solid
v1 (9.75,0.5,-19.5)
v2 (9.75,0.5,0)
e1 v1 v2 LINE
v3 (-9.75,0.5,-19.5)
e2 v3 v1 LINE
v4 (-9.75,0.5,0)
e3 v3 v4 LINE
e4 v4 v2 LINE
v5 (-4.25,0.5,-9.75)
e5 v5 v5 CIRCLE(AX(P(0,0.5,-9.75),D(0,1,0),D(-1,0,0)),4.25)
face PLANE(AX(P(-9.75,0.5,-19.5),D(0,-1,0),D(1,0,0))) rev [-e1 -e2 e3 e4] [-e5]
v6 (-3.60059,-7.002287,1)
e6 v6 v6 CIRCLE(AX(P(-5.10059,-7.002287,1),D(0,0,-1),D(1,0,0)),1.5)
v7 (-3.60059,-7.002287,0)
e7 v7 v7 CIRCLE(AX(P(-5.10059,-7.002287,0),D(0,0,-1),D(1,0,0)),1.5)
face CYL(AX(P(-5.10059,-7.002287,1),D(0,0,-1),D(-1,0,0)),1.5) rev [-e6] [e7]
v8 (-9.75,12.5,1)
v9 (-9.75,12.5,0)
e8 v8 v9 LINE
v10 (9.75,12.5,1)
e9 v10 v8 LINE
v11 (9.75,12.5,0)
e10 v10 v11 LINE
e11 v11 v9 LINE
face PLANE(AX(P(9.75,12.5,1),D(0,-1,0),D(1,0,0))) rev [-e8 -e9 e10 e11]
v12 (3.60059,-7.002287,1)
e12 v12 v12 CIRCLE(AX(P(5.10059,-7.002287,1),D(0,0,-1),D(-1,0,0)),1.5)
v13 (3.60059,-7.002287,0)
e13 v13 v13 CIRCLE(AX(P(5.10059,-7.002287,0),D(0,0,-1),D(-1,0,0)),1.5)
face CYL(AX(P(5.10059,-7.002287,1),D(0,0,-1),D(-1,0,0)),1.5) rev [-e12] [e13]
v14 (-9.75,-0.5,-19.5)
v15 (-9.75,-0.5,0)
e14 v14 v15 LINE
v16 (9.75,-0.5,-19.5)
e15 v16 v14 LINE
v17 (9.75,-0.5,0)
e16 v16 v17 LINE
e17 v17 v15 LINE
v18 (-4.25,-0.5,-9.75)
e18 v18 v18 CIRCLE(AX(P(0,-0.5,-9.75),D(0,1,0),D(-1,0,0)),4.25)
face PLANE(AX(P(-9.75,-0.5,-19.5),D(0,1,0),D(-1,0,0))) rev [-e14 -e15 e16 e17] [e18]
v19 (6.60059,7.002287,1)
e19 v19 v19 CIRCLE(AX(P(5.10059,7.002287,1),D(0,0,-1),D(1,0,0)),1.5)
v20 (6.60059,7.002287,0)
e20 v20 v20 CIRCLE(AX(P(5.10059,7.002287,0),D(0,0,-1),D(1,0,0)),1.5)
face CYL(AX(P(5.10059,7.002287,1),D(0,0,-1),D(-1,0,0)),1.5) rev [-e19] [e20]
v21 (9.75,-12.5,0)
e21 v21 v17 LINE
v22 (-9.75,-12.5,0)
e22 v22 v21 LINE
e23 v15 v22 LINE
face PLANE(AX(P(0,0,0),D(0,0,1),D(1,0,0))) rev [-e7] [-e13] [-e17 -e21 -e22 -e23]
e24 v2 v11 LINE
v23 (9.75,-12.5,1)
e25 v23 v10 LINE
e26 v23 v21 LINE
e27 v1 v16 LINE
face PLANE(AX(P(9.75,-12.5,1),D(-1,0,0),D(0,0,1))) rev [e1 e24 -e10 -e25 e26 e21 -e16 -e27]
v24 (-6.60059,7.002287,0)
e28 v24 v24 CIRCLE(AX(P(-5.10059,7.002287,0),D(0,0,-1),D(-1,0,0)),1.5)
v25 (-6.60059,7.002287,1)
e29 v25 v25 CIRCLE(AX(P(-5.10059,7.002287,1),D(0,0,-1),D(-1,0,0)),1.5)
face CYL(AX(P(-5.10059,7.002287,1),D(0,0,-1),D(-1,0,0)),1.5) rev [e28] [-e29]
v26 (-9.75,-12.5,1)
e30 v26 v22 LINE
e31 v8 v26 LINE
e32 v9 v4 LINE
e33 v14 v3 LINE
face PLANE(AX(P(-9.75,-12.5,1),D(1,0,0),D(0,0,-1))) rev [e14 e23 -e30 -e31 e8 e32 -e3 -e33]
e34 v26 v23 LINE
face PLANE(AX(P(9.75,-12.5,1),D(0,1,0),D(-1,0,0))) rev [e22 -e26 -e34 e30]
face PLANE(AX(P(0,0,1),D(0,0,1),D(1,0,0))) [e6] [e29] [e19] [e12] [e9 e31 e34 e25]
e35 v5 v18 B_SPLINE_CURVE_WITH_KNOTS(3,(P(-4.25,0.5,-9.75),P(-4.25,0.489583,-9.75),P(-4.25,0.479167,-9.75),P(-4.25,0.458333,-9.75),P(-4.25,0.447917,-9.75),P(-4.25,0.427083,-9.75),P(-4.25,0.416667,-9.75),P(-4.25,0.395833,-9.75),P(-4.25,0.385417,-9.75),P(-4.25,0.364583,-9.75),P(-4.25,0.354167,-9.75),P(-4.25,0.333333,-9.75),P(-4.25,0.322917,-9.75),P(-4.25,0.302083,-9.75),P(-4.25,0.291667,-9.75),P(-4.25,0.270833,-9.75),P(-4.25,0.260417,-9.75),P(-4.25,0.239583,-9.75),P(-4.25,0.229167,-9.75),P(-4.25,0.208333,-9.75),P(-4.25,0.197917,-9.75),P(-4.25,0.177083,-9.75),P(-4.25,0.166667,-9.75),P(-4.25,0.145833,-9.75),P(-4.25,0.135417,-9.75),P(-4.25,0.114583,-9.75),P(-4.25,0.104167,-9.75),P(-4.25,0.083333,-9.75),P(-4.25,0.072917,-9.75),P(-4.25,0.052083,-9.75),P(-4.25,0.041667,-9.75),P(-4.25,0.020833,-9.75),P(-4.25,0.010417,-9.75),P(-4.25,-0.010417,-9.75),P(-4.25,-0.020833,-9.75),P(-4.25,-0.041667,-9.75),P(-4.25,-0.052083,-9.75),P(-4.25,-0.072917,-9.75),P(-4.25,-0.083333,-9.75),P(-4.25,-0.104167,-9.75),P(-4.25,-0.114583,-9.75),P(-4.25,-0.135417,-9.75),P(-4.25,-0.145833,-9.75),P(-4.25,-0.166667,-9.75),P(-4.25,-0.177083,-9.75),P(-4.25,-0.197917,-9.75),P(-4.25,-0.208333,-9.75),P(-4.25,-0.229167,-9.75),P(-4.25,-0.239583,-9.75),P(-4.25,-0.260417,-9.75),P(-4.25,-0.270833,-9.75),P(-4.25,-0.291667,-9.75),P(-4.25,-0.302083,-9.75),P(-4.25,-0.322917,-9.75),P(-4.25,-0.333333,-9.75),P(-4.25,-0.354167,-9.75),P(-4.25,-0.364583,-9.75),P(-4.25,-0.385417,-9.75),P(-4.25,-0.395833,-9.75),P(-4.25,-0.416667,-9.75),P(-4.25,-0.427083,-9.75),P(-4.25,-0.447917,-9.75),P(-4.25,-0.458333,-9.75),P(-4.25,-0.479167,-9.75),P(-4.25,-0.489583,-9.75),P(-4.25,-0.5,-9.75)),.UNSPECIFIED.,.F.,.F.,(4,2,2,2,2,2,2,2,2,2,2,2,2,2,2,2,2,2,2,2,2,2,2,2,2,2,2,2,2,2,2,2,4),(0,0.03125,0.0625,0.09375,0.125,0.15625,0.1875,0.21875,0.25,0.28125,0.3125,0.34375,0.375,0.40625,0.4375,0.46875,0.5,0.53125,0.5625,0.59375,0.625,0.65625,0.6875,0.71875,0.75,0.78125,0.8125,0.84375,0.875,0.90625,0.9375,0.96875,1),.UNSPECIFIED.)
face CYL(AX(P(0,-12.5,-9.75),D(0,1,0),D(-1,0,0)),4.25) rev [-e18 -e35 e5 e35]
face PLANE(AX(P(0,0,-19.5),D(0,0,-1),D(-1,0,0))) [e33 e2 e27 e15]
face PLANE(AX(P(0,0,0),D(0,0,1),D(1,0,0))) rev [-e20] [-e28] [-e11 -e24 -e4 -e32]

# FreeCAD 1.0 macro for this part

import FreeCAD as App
import Part
import Sketcher
from FreeCAD import Vector


def add_polygon(sketch, points):
    """Adds a closed chain of lines whose ends are joined by coincident constraints."""
    first, n = sketch.GeometryCount, len(points)
    for a, b in zip(points, points[1:] + points[:1]):
        sketch.addGeometry(Part.LineSegment(App.Vector(*a, 0), App.Vector(*b, 0)), False)
    for i in range(n):
        sketch.addConstraint(Sketcher.Constraint("Coincident", first + i, 2, first + (i + 1) % n, 1))

doc = App.newDocument("Part")
body = doc.addObject("PartDesign::Body", "Body")

# Sketch on XY plane
sketch1 = doc.addObject("Sketcher::SketchObject", "Sketch")
body.addObject(sketch1)
sketch1.AttachmentSupport = (doc.XY_Plane, [""])
sketch1.MapMode = "FlatFace"
add_polygon(sketch1, [(-10, 12), (-10, -12), (10, -12), (10, 12)])  # lines 0-3
sketch1.addConstraint([
    Sketcher.Constraint("Vertical", 0),
    Sketcher.Constraint("Horizontal", 1),
    Sketcher.Constraint("Vertical", 2),
    Sketcher.Constraint("Horizontal", 3),
    Sketcher.Constraint("Symmetric", 0, 2, 2, 2, -1, 1),
    Sketcher.Constraint("DistanceY", 0, 2, 0, 1, 25.0),
    Sketcher.Constraint("DistanceX", 1, 1, 1, 2, 19.5),
])
pad1 = doc.addObject("PartDesign::Pad", "Pad")
body.addObject(pad1)
pad1.Profile = sketch1
pad1.Length = 1

# Sketch on XY plane
sketch2 = doc.addObject("Sketcher::SketchObject", "Sketch001")
body.addObject(sketch2)
sketch2.AttachmentSupport = (doc.XY_Plane, [""])
sketch2.MapMode = "FlatFace"
add_polygon(sketch2, [(9.8, 0.5), (9.8, -0.5), (-9.8, -0.5), (-9.8, 0.5)])  # lines 0-3
sketch2.addConstraint([
    Sketcher.Constraint("Vertical", 0),
    Sketcher.Constraint("Horizontal", 1),
    Sketcher.Constraint("Vertical", 2),
    Sketcher.Constraint("Horizontal", 3),
    Sketcher.Constraint("Symmetric", 0, 2, 2, 2, -1, 1),
    Sketcher.Constraint("DistanceY", 0, 2, 0, 1, 1.0),
    Sketcher.Constraint("DistanceX", 1, 2, 1, 1, 19.5),
])
pad2 = doc.addObject("PartDesign::Pad", "Pad001")
body.addObject(pad2)
pad2.Profile = sketch2
pad2.Length = 19.5
pad2.Reversed = True

# Sketch on XY plane
sketch3 = doc.addObject("Sketcher::SketchObject", "Sketch002")
body.addObject(sketch3)
sketch3.AttachmentSupport = (doc.XY_Plane, [""])
sketch3.MapMode = "FlatFace"
sketch3.addGeometry([
    Part.Circle(Vector(-5.1, 7, 0), Vector(0, 0, 1), 1.5),
    Part.Circle(Vector(5.1, 7, 0), Vector(0, 0, 1), 1.5),
    Part.Circle(Vector(-5.1, -7, 0), Vector(0, 0, 1), 1.5),
    Part.Circle(Vector(5.1, -7, 0), Vector(0, 0, 1), 1.5),
], False)
sketch3.addConstraint([
    Sketcher.Constraint("Equal", 0, 1),
    Sketcher.Constraint("Equal", 1, 2),
    Sketcher.Constraint("Equal", 2, 3),
    Sketcher.Constraint("Symmetric", 1, 3, 2, 3, -1, 1),
    Sketcher.Constraint("Symmetric", 0, 3, 3, 3, -1, 1),
    Sketcher.Constraint("Symmetric", 0, 3, 1, 3, -2),
    Sketcher.Constraint("Diameter", 0, 3.0),
    Sketcher.Constraint("DistanceX", 0, 3, -1, 1, 5.10059),
    Sketcher.Constraint("DistanceY", -1, 1, 0, 3, 7.002287),
])
pocket1 = doc.addObject("PartDesign::Pocket", "Pocket")
body.addObject(pocket1)
pocket1.Profile = sketch3
pocket1.Type = "ThroughAll"
pocket1.Reversed = True

# Sketch on XZ plane
sketch4 = doc.addObject("Sketcher::SketchObject", "Sketch003")
body.addObject(sketch4)
sketch4.AttachmentSupport = (doc.XZ_Plane, [""])
sketch4.MapMode = "FlatFace"
sketch4.AttachmentOffset = App.Placement(Vector(0, 0, -0.5), App.Rotation())
sketch4.addGeometry(Part.Circle(Vector(0, -9.8, 0), Vector(0, 0, 1), 4.2), False)
sketch4.addConstraint([
    Sketcher.Constraint("PointOnObject", 0, 3, -2),
    Sketcher.Constraint("Diameter", 0, 8.5),
    Sketcher.Constraint("DistanceY", 0, 3, -1, 1, 9.75),
])
pocket2 = doc.addObject("PartDesign::Pocket", "Pocket001")
body.addObject(pocket2)
pocket2.Profile = sketch4
pocket2.Type = "ThroughAll"
pocket2.Reversed = True

doc.recompute()
